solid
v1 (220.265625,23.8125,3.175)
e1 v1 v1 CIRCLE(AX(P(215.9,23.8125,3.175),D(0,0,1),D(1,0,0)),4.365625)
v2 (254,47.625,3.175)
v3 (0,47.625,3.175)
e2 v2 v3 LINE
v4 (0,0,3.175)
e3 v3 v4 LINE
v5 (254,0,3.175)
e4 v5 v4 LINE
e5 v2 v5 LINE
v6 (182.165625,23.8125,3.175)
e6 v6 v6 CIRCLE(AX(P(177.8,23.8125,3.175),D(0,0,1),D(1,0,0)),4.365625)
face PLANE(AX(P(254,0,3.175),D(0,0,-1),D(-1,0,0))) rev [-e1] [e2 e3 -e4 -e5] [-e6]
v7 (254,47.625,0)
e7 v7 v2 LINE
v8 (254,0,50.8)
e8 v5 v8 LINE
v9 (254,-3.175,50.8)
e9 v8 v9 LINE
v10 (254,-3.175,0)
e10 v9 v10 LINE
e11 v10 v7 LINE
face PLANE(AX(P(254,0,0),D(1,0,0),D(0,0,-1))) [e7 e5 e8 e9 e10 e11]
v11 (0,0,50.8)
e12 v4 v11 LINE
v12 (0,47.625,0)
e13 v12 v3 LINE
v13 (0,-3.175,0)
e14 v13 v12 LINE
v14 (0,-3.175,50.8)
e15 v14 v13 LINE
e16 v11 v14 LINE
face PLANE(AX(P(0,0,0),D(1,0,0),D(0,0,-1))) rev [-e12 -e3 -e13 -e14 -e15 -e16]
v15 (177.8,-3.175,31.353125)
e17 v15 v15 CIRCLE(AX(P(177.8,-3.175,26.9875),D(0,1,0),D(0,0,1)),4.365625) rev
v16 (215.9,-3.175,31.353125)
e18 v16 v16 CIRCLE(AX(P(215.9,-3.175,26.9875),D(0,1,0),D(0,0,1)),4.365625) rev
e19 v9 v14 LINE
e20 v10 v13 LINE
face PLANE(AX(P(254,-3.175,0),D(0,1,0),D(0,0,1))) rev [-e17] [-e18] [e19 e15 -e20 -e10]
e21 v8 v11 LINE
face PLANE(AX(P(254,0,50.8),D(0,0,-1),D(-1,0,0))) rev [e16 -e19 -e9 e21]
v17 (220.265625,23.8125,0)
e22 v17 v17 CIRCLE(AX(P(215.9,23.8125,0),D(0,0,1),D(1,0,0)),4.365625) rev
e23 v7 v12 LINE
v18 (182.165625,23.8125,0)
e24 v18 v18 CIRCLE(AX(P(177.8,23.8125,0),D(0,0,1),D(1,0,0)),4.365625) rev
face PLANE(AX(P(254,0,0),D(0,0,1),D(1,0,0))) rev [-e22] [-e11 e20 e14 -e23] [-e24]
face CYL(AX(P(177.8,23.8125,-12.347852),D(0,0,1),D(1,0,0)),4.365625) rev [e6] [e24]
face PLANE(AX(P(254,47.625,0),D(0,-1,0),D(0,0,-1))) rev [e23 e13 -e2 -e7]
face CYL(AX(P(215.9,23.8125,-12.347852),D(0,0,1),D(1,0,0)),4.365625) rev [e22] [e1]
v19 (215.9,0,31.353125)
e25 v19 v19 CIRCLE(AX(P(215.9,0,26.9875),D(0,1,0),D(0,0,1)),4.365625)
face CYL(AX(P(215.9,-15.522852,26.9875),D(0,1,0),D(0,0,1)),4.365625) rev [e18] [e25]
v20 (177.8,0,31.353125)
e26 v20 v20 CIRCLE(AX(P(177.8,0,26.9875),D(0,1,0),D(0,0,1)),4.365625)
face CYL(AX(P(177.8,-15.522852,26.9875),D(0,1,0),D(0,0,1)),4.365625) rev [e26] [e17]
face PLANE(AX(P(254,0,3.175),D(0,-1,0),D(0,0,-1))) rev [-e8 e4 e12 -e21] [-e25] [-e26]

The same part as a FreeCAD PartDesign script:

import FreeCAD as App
import Part
import Sketcher
from FreeCAD import Vector
Q = App.Units.Quantity

doc = App.newDocument("Part")
body = doc.addObject("PartDesign::Body", "Body")

# Sketch on YZ plane
sketch1 = body.newObject("Sketcher::SketchObject", "Sketch")
sketch1.AttachmentSupport = (doc.getObject("YZ_Plane"), [""])
sketch1.MapMode = "FlatFace"
sketch1.addGeometry(Part.LineSegment(Vector(0, 3.2, 0), Vector(0, 50.8, 0)), False)
sketch1.addGeometry(Part.LineSegment(Vector(0, 50.8, 0), Vector(-3.2, 50.8, 0)), False)
sketch1.addGeometry(Part.LineSegment(Vector(-3.2, 50.8, 0), Vector(-3.2, 0, 0)), False)
sketch1.addGeometry(Part.LineSegment(Vector(-3.2, 0, 0), Vector(47.6, 0, 0)), False)
sketch1.addGeometry(Part.LineSegment(Vector(47.6, 0, 0), Vector(47.6, 3.2, 0)), False)
sketch1.addGeometry(Part.LineSegment(Vector(47.6, 3.2, 0), Vector(0, 3.2, 0)), False)
sketch1.addConstraint(Sketcher.Constraint("Coincident", 0, 2, 1, 1))
sketch1.addConstraint(Sketcher.Constraint("Coincident", 1, 2, 2, 1))
sketch1.addConstraint(Sketcher.Constraint("Coincident", 2, 2, 3, 1))
sketch1.addConstraint(Sketcher.Constraint("Coincident", 3, 2, 4, 1))
sketch1.addConstraint(Sketcher.Constraint("Coincident", 4, 2, 5, 1))
sketch1.addConstraint(Sketcher.Constraint("Coincident", 5, 2, 0, 1))
sketch1.addConstraint(Sketcher.Constraint("Vertical", 0))
sketch1.addConstraint(Sketcher.Constraint("Horizontal", 1))
sketch1.addConstraint(Sketcher.Constraint("Vertical", 2))
sketch1.addConstraint(Sketcher.Constraint("Horizontal", 3))
sketch1.addConstraint(Sketcher.Constraint("Vertical", 4))
sketch1.addConstraint(Sketcher.Constraint("Horizontal", 5))
sketch1.addConstraint(Sketcher.Constraint("PointOnObject", 0, 2, -2))
sketch1.addConstraint(Sketcher.Constraint("PointOnObject", 2, 2, -1))
sketch1.addConstraint(Sketcher.Constraint("Equal", 5, 0))
sketch1.addConstraint(Sketcher.Constraint("Equal", 3, 2))
sketch1.addConstraint(Sketcher.Constraint("DistanceX", 3, 1, 3, 2, Q("2 in")))
sketch1.addConstraint(Sketcher.Constraint("DistanceX", 1, 2, 1, 1, Q("0.125 in")))
pad1 = body.newObject("PartDesign::Pad", "Pad")
pad1.Profile = sketch1
pad1.Length = Q("10 in")

# Sketch on XY plane
sketch2 = body.newObject("Sketcher::SketchObject", "Sketch001")
sketch2.AttachmentSupport = (doc.getObject("XY_Plane"), [""])
sketch2.MapMode = "FlatFace"
sketch2.AttachmentOffset = App.Placement(Vector(0, 0, 0.125 * 25.4), App.Rotation())
sketch2.addGeometry(Part.Circle(Vector(177.8, 23.8, 0), Vector(0, 0, 1), 4.4), False)
sketch2.addGeometry(Part.Circle(Vector(215.9, 23.8, 0), Vector(0, 0, 1), 4.4), False)
sketch2.addConstraint(Sketcher.Constraint("Equal", 0, 1))
sketch2.addConstraint(Sketcher.Constraint("Horizontal", 0, 3, 1, 3))
sketch2.addConstraint(Sketcher.Constraint("Diameter", 0, Q("0.34375 in")))
sketch2.addConstraint(Sketcher.Constraint("DistanceX", -1, 1, 0, 3, Q("7 in")))
sketch2.addConstraint(Sketcher.Constraint("DistanceX", -1, 1, 1, 3, Q("8.5 in")))
sketch2.addConstraint(Sketcher.Constraint("DistanceY", -1, 1, 0, 3, Q("0.9375 in")))
pocket1 = body.newObject("PartDesign::Pocket", "Pocket")
pocket1.Profile = sketch2
pocket1.Length = Q("0.125 in")

# Sketch on XZ plane
sketch3 = body.newObject("Sketcher::SketchObject", "Sketch002")
sketch3.AttachmentSupport = (doc.getObject("XZ_Plane"), [""])
sketch3.MapMode = "FlatFace"
sketch3.addGeometry(Part.Circle(Vector(177.8, 27, 0), Vector(0, 0, 1), 4.4), False)
sketch3.addGeometry(Part.Circle(Vector(215.9, 27, 0), Vector(0, 0, 1), 4.4), False)
sketch3.addConstraint(Sketcher.Constraint("Equal", 0, 1))
sketch3.addConstraint(Sketcher.Constraint("Horizontal", 0, 3, 1, 3))
sketch3.addConstraint(Sketcher.Constraint("Diameter", 0, Q("0.34375 in")))
sketch3.addConstraint(Sketcher.Constraint("DistanceX", -1, 1, 0, 3, Q("7 in")))
sketch3.addConstraint(Sketcher.Constraint("DistanceX", -1, 1, 1, 3, Q("8.5 in")))
sketch3.addConstraint(Sketcher.Constraint("DistanceY", -1, 1, 0, 3, Q("1.0625 in")))
pocket2 = body.newObject("PartDesign::Pocket", "Pocket001")
pocket2.Profile = sketch3
pocket2.Length = Q("0.125 in")
pocket2.Reversed = True

doc.recompute()
